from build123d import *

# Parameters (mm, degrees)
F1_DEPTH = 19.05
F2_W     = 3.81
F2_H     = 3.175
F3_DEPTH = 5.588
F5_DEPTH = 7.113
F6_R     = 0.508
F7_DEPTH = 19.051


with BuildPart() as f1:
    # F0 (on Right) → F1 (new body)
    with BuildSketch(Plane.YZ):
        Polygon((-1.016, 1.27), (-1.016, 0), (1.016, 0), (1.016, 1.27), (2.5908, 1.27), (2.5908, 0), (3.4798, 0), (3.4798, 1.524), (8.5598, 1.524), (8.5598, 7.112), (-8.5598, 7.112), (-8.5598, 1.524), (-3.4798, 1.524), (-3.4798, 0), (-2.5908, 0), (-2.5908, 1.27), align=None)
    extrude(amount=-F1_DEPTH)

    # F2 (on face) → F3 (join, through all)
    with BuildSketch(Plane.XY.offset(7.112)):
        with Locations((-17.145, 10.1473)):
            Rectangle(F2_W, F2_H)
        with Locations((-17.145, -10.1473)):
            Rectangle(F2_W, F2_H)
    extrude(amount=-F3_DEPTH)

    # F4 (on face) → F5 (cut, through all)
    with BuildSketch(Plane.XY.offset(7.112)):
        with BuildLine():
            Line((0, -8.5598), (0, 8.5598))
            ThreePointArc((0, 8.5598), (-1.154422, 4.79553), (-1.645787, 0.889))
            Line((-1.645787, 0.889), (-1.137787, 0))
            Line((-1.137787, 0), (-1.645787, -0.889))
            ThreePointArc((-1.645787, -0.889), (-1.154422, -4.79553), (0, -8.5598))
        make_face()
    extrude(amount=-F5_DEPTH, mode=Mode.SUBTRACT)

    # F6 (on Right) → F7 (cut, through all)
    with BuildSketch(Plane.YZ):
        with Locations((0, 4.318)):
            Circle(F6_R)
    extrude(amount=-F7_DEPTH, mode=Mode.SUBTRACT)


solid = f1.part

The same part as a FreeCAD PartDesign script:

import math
import FreeCAD as App
import Part
import Sketcher
from FreeCAD import Vector
Q = App.Units.Quantity


def add_polygon(sketch, points):
    """Adds a closed chain of lines whose ends are joined by coincident constraints."""
    first, n = sketch.GeometryCount, len(points)
    for a, b in zip(points, points[1:] + points[:1]):
        sketch.addGeometry(Part.LineSegment(App.Vector(*a, 0), App.Vector(*b, 0)), False)
    for i in range(n):
        sketch.addConstraint(Sketcher.Constraint("Coincident", first + i, 2, first + (i + 1) % n, 1))

doc = App.newDocument("Part")
body = doc.addObject("PartDesign::Body", "Body")

sketch1 = doc.addObject("Sketcher::SketchObject", "Sketch")
body.addObject(sketch1)
sketch1.AttachmentSupport = (doc.YZ_Plane, [""])
sketch1.MapMode = "FlatFace"
add_polygon(sketch1, [(-1, 1.3), (-1, 0), (1, 0), (1, 1.3), (2.6, 1.3), (2.6, 0), (3.5, 0), (3.5, 1.5), (8.6, 1.5), (8.6, 7.1), (-8.6, 7.1), (-8.6, 1.5), (-3.5, 1.5), (-3.5, 0), (-2.6, 0), (-2.6, 1.3)])
sketch1.addConstraint(Sketcher.Constraint("Vertical", 0))
sketch1.addConstraint(Sketcher.Constraint("Horizontal", 1))
sketch1.addConstraint(Sketcher.Constraint("Vertical", 2))
sketch1.addConstraint(Sketcher.Constraint("Horizontal", 3))
sketch1.addConstraint(Sketcher.Constraint("Vertical", 4))
sketch1.addConstraint(Sketcher.Constraint("Horizontal", 5))
sketch1.addConstraint(Sketcher.Constraint("Vertical", 6))
sketch1.addConstraint(Sketcher.Constraint("Horizontal", 7))
sketch1.addConstraint(Sketcher.Constraint("Vertical", 8))
sketch1.addConstraint(Sketcher.Constraint("Horizontal", 9))
sketch1.addConstraint(Sketcher.Constraint("Vertical", 10))
sketch1.addConstraint(Sketcher.Constraint("Horizontal", 11))
sketch1.addConstraint(Sketcher.Constraint("Vertical", 12))
sketch1.addConstraint(Sketcher.Constraint("Horizontal", 13))
sketch1.addConstraint(Sketcher.Constraint("Vertical", 14))
sketch1.addConstraint(Sketcher.Constraint("Horizontal", 15))
sketch1.addConstraint(Sketcher.Constraint("Symmetric", 0, 2, 1, 2, -1, 1))
sketch1.addConstraint(Sketcher.Constraint("Symmetric", 5, 2, 12, 2, -1, 1))
sketch1.addConstraint(Sketcher.Constraint("Symmetric", 7, 2, 10, 2, -2))
sketch1.addConstraint(Sketcher.Constraint("Symmetric", 4, 2, 13, 2, -2))
sketch1.addConstraint(Sketcher.Constraint("Horizontal", 3, 2, 14, 2))
sketch1.addConstraint(Sketcher.Constraint("DistanceX", 7, 1, 7, 2, Q("0.2 in")))
sketch1.addConstraint(Sketcher.Constraint("DistanceX", 1, 1, 1, 2, Q("0.08 in")))
sketch1.addConstraint(Sketcher.Constraint("DistanceY", 0, 2, 0, 1, Q("0.05 in")))
sketch1.addConstraint(Sketcher.Constraint("DistanceY", 6, 1, 6, 2, Q("0.06 in")))
sketch1.addConstraint(Sketcher.Constraint("DistanceY", 8, 1, 8, 2, Q("0.22 in")))
sketch1.addConstraint(Sketcher.Constraint("DistanceX", 3, 1, 3, 2, Q("0.062 in")))
sketch1.addConstraint(Sketcher.Constraint("DistanceX", 5, 1, 5, 2, Q("0.035 in")))
pad1 = doc.addObject("PartDesign::Pad", "Pad")
body.addObject(pad1)
pad1.Profile = sketch1
pad1.Length = Q("0.75 in")
pad1.Reversed = True

sketch2 = doc.addObject("Sketcher::SketchObject", "Sketch001")
body.addObject(sketch2)
sketch2.AttachmentSupport = (doc.XY_Plane, [""])
sketch2.MapMode = "FlatFace"
sketch2.AttachmentOffset = App.Placement(Vector(0, 0, 0.28 * 25.4), App.Rotation())
add_polygon(sketch2, [(-19.1, 11.7), (-19.1, 8.6), (-15.2, 8.6), (-15.2, 11.7)])
add_polygon(sketch2, [(-19.1, -8.6), (-19.1, -11.7), (-15.2, -11.7), (-15.2, -8.6)])
sketch2.addConstraint(Sketcher.Constraint("Vertical", 0))
sketch2.addConstraint(Sketcher.Constraint("Horizontal", 1))
sketch2.addConstraint(Sketcher.Constraint("Vertical", 2))
sketch2.addConstraint(Sketcher.Constraint("Horizontal", 3))
sketch2.addConstraint(Sketcher.Constraint("Vertical", 4))
sketch2.addConstraint(Sketcher.Constraint("Horizontal", 5))
sketch2.addConstraint(Sketcher.Constraint("Vertical", 6))
sketch2.addConstraint(Sketcher.Constraint("Horizontal", 7))
sketch2.addConstraint(Sketcher.Constraint("Symmetric", 3, 2, 4, 2, -1))
sketch2.addConstraint(Sketcher.Constraint("Symmetric", 1, 2, 6, 2, -1))
sketch2.addConstraint(Sketcher.Constraint("DistanceX", 1, 1, 1, 2, Q("0.15 in")))
sketch2.addConstraint(Sketcher.Constraint("DistanceX", 1, 2, -1, 1, Q("0.6 in")))
sketch2.addConstraint(Sketcher.Constraint("DistanceY", 0, 2, 0, 1, Q("0.125 in")))
sketch2.addConstraint(Sketcher.Constraint("DistanceY", -1, 1, 0, 2, Q("0.337 in")))
pad2 = doc.addObject("PartDesign::Pad", "Pad001")
body.addObject(pad2)
pad2.Profile = sketch2
pad2.Length = Q("0.22 in")
pad2.Reversed = True

sketch3 = doc.addObject("Sketcher::SketchObject", "Sketch002")
body.addObject(sketch3)
sketch3.AttachmentSupport = (doc.XY_Plane, [""])
sketch3.MapMode = "FlatFace"
sketch3.AttachmentOffset = App.Placement(Vector(0, 0, 0.28 * 25.4), App.Rotation())
sketch3.addGeometry(Part.LineSegment(Vector(0, -8.6, 0), Vector(0, 8.6, 0)), False)
sketch3.addGeometry(Part.ArcOfCircle(Part.Circle(Vector(21.2, 0, 0), Vector(0, 0, 1), 22.9), math.radians(158.01), math.radians(177.77)), False)
sketch3.addGeometry(Part.LineSegment(Vector(-1.6, 0.9, 0), Vector(-1.1, 0, 0)), False)
sketch3.addGeometry(Part.LineSegment(Vector(-1.1, 0, 0), Vector(-1.6, -0.9, 0)), False)
sketch3.addGeometry(Part.ArcOfCircle(Part.Circle(Vector(21.2, 0, 0), Vector(0, 0, 1), 22.9), math.radians(-177.77), math.radians(-158.01)), False)
sketch3.addConstraint(Sketcher.Constraint("Coincident", 0, 2, 1, 1))
sketch3.addConstraint(Sketcher.Constraint("Coincident", 1, 2, 2, 1))
sketch3.addConstraint(Sketcher.Constraint("Coincident", 2, 2, 3, 1))
sketch3.addConstraint(Sketcher.Constraint("Coincident", 3, 2, 4, 1))
sketch3.addConstraint(Sketcher.Constraint("Coincident", 4, 2, 0, 1))
sketch3.addConstraint(Sketcher.Constraint("Vertical", 0))
sketch3.addConstraint(Sketcher.Constraint("Coincident", 4, 3, 1, 3))
sketch3.addConstraint(Sketcher.Constraint("Equal", 1, 4))
sketch3.addConstraint(Sketcher.Constraint("Symmetric", 0, 2, 4, 2, -1, 1))
sketch3.addConstraint(Sketcher.Constraint("PointOnObject", 2, 2, -1))
sketch3.addConstraint(Sketcher.Constraint("Vertical", 1, 2, 3, 2))
sketch3.addConstraint(Sketcher.Constraint("DistanceY", 0, 1, 0, 2, Q("0.674 in")))
sketch3.addConstraint(Sketcher.Constraint("DistanceX", 1, 2, 2, 2, Q("0.02 in")))
sketch3.addConstraint(Sketcher.Constraint("DistanceY", 3, 2, 1, 2, Q("0.07 in")))
sketch3.addConstraint(Sketcher.Constraint("Radius", 1, Q("22.859988 mm")))
pocket1 = doc.addObject("PartDesign::Pocket", "Pocket")
body.addObject(pocket1)
pocket1.Profile = sketch3
pocket1.Type = "ThroughAll"

sketch4 = doc.addObject("Sketcher::SketchObject", "Sketch003")
body.addObject(sketch4)
sketch4.AttachmentSupport = (doc.YZ_Plane, [""])
sketch4.MapMode = "FlatFace"
sketch4.addGeometry(Part.Circle(Vector(0, 4.3, 0), Vector(0, 0, 1), 0.5), False)
sketch4.addConstraint(Sketcher.Constraint("PointOnObject", 0, 3, -2))
sketch4.addConstraint(Sketcher.Constraint("Diameter", 0, Q("0.04 in")))
sketch4.addConstraint(Sketcher.Constraint("DistanceY", -1, 1, 0, 3, Q("0.17 in")))
pocket2 = doc.addObject("PartDesign::Pocket", "Pocket001")
body.addObject(pocket2)
pocket2.Profile = sketch4
pocket2.Type = "ThroughAll"

doc.recompute()
